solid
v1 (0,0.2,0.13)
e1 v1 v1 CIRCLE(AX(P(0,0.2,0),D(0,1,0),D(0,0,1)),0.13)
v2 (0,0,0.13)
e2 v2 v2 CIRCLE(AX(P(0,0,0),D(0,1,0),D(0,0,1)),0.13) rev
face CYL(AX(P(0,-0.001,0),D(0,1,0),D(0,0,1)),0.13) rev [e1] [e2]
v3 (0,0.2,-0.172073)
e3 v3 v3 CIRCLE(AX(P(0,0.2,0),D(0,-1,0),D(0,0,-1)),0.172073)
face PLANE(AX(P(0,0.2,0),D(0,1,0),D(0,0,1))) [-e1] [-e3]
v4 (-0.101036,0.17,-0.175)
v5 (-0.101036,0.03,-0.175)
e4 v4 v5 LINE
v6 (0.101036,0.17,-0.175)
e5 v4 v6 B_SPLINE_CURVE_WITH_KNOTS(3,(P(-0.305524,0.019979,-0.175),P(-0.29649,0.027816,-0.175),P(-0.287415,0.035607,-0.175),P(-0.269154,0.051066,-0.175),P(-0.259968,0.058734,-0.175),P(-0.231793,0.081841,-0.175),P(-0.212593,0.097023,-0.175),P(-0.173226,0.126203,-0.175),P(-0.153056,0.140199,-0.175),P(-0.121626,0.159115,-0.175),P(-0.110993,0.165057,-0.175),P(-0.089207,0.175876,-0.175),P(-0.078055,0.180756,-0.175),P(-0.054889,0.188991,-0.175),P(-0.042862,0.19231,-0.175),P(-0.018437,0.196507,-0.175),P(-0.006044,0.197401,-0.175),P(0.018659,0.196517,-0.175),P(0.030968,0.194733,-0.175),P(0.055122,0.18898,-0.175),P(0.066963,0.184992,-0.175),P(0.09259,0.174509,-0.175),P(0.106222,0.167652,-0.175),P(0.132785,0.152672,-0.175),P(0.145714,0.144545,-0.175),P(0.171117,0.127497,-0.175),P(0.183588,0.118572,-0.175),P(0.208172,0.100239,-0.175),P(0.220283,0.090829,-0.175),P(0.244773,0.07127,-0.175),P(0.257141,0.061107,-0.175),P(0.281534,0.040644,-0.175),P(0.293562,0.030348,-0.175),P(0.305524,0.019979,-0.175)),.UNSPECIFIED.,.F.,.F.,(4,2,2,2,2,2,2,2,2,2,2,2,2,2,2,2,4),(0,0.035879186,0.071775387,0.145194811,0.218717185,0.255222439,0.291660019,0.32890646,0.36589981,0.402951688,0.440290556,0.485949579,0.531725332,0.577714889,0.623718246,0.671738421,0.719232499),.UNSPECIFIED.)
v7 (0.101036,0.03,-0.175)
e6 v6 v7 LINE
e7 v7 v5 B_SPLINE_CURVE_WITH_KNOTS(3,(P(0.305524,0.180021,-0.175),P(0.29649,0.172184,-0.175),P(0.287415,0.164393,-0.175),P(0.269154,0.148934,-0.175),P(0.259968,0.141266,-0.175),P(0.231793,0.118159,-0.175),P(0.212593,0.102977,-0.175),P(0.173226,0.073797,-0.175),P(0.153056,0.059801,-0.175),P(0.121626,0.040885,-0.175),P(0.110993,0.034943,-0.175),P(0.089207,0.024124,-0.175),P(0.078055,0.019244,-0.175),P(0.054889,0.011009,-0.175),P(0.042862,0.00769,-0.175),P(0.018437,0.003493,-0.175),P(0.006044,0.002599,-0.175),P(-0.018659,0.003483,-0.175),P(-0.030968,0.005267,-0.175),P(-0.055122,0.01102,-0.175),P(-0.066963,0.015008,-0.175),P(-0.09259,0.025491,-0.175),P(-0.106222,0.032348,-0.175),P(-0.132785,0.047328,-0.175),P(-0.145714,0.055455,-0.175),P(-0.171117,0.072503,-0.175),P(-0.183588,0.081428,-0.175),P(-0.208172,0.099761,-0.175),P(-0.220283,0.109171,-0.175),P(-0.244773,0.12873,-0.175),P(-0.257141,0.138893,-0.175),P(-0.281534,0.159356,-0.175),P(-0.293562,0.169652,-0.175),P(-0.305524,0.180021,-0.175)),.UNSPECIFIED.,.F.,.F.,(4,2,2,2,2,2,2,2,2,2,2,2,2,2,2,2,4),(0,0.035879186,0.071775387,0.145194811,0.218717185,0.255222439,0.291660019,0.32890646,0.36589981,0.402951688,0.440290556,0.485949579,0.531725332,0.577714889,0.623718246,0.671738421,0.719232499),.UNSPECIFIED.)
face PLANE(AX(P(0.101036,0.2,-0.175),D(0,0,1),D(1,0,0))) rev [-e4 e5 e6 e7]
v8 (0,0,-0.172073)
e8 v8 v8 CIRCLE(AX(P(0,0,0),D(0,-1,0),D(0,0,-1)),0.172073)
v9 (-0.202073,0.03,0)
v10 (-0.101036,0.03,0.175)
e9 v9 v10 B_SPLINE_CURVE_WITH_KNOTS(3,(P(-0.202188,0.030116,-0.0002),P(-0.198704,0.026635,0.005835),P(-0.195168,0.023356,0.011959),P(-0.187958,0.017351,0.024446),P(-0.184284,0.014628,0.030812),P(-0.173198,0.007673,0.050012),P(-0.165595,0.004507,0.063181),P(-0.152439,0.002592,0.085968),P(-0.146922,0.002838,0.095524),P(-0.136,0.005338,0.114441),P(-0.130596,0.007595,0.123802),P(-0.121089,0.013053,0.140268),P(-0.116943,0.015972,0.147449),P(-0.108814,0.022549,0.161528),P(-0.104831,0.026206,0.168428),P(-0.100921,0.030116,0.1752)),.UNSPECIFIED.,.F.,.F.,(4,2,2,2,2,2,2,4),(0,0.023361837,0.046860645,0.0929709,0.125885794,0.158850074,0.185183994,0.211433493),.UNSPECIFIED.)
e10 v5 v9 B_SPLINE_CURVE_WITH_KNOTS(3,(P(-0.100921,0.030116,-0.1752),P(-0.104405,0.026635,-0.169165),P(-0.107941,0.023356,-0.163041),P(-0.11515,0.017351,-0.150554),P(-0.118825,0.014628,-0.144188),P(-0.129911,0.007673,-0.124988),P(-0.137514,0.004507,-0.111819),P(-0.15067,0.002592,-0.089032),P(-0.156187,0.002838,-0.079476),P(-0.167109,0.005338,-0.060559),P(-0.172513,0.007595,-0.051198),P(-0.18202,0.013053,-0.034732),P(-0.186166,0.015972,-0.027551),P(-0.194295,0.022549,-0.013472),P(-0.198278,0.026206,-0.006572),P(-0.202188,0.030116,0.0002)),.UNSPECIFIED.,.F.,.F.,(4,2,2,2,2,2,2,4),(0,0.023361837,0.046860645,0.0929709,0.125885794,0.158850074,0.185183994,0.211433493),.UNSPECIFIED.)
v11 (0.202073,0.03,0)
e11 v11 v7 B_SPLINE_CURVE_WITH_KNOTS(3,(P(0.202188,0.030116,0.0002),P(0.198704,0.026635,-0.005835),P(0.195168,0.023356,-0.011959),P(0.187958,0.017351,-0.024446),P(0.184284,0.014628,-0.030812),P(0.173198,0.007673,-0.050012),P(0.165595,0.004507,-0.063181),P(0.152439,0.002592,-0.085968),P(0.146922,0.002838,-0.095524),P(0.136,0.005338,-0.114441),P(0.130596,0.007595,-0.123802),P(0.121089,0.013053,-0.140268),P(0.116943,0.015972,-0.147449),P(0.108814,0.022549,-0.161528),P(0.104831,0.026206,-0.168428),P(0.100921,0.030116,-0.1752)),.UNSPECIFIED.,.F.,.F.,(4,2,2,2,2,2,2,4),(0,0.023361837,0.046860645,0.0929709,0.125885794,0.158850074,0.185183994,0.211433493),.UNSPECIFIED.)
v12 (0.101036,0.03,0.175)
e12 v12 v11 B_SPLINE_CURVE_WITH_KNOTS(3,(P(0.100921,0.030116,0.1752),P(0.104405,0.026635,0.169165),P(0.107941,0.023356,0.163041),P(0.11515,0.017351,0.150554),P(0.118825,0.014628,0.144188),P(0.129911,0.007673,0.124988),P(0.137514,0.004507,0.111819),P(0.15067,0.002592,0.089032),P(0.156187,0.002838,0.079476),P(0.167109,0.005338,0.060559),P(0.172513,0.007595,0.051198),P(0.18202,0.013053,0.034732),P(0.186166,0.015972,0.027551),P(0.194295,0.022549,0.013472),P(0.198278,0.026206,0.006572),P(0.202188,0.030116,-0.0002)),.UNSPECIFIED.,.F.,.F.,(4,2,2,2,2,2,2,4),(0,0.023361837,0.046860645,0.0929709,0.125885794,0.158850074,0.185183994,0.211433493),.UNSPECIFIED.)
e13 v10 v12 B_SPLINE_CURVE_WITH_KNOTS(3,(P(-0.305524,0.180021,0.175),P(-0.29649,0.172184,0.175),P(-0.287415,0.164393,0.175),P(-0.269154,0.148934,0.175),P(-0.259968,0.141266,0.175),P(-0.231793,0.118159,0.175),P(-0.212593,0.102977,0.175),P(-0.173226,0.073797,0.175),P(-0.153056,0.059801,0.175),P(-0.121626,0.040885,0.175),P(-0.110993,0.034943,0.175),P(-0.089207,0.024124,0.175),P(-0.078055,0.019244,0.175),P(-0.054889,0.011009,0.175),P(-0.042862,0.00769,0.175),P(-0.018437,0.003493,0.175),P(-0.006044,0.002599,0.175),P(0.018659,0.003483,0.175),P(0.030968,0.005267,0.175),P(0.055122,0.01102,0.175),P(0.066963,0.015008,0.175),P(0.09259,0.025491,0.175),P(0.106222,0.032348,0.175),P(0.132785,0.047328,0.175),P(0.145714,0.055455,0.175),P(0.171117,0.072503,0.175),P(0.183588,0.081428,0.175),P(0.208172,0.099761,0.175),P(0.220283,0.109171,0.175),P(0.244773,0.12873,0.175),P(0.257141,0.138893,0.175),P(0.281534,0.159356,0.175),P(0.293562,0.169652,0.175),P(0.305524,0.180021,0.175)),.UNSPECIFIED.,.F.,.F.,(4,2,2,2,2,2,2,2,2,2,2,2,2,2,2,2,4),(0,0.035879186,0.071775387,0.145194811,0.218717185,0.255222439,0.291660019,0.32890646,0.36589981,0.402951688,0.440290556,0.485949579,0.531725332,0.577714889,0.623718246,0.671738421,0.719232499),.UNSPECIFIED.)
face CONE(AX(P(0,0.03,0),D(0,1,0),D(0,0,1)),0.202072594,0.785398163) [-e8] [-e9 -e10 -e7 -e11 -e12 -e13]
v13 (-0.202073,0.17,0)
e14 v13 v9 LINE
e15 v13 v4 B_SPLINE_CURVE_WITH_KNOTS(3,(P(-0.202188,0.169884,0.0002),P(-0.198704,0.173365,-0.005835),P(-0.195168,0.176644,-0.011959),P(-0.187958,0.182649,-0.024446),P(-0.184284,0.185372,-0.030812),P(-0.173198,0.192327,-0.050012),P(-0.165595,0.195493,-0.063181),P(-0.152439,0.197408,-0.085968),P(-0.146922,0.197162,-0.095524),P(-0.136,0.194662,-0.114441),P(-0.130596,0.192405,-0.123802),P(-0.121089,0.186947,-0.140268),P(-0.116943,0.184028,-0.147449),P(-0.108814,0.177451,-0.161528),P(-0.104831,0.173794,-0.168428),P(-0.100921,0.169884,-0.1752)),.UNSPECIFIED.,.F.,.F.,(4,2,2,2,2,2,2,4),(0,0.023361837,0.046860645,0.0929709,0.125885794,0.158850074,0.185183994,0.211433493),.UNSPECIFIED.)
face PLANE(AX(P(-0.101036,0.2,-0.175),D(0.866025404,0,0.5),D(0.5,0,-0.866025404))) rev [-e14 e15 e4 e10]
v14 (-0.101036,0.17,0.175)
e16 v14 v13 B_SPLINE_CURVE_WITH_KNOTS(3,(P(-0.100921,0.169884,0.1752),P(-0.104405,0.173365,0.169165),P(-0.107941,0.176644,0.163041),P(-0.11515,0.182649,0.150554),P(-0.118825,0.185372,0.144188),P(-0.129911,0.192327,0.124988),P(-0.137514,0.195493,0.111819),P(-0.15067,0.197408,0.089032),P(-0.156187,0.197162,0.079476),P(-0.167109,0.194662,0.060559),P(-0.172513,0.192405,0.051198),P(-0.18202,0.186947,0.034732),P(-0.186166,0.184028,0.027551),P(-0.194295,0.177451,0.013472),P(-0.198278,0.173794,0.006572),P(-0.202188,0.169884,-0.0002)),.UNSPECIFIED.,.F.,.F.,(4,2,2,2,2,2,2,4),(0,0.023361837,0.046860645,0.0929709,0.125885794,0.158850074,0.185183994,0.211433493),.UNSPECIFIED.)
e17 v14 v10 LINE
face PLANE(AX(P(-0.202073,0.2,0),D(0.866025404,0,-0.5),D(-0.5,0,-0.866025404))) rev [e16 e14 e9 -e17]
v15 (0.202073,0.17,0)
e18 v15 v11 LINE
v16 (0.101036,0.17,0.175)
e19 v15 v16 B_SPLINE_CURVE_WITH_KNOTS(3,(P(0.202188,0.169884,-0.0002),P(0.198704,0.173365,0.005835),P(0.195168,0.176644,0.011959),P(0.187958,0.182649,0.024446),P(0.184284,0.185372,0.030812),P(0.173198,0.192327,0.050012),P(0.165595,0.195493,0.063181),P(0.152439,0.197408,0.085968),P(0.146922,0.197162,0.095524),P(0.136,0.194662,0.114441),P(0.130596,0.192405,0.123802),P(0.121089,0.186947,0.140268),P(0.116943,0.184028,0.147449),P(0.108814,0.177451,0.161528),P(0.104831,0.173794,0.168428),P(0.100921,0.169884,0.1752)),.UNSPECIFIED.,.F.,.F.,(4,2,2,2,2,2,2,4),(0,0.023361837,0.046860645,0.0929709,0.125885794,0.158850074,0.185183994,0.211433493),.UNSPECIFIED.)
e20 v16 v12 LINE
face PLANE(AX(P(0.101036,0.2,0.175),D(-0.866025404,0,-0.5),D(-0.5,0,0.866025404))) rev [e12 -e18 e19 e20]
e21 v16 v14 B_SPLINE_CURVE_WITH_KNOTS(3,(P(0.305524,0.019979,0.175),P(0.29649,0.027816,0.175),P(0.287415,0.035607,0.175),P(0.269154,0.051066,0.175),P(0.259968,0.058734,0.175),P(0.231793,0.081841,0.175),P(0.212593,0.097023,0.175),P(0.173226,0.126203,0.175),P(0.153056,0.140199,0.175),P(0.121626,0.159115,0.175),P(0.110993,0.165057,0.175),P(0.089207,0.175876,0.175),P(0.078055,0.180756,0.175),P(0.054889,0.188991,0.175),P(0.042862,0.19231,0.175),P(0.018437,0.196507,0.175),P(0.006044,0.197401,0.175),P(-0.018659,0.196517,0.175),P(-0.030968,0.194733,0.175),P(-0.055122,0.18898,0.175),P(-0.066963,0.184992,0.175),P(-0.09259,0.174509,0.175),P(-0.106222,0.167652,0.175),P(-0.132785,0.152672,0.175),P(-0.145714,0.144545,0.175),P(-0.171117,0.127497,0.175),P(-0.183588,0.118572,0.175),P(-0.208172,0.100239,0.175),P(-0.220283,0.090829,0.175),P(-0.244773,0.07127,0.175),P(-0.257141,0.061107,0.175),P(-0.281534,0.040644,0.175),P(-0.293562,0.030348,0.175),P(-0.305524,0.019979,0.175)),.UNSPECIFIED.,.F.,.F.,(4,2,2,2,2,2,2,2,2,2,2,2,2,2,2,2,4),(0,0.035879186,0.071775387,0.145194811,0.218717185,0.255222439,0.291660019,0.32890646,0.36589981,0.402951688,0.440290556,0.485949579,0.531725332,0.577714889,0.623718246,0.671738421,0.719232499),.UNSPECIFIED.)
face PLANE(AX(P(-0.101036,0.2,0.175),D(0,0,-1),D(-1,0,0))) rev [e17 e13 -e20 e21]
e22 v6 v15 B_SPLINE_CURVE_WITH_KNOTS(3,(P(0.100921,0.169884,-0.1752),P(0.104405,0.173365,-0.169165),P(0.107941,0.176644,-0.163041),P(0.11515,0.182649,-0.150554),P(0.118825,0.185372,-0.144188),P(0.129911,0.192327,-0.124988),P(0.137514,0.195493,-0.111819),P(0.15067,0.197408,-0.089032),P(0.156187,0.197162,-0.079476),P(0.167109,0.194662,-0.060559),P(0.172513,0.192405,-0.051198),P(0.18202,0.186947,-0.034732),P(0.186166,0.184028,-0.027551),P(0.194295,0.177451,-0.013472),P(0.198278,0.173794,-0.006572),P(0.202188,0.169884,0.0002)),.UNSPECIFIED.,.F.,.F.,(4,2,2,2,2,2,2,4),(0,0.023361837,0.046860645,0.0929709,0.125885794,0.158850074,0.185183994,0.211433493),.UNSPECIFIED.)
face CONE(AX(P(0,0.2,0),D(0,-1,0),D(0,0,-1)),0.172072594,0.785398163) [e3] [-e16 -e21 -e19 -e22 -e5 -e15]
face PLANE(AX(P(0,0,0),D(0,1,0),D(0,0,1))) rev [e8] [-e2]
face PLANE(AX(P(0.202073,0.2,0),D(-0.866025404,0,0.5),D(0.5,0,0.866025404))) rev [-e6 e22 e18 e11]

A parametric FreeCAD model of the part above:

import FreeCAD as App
import Part
import Sketcher

V = App.Vector
Q = App.Units.Quantity


def add_polygon(sketch, points):
    """Adds a closed chain of lines whose ends are joined by coincident constraints."""
    first, n = sketch.GeometryCount, len(points)
    for a, b in zip(points, points[1:] + points[:1]):
        sketch.addGeometry(Part.LineSegment(App.Vector(*a, 0), App.Vector(*b, 0)), False)
    for i in range(n):
        sketch.addConstraint(Sketcher.Constraint("Coincident", first + i, 2, first + (i + 1) % n, 1))

doc = App.newDocument("Part")
body = doc.addObject("PartDesign::Body", "Body")

# Sketch on XZ plane
sketch1 = body.newObject("Sketcher::SketchObject", "Sketch")
sketch1.AttachmentSupport = (doc.getObject("XZ_Plane"), [""])
sketch1.MapMode = "FlatFace"
add_polygon(sketch1, [(0.2, 0), (0.1, -0.17), (-0.1, -0.17), (-0.2, 0), (-0.1, 0.17), (0.1, 0.17)])  # lines 0-5
sketch1.addConstraint([
    Sketcher.Constraint("Horizontal", 1),
    Sketcher.Constraint("Horizontal", 4),
    Sketcher.Constraint("Symmetric", 0, 2, 3, 2, -1, 1),
    Sketcher.Constraint("Symmetric", 2, 2, 5, 2, -1, 1),
    Sketcher.Constraint("PointOnObject", 2, 2, -1),
    Sketcher.Constraint("Parallel", 2, 5),
    Sketcher.Constraint("Vertical", 1, 2, 3, 2),
    Sketcher.Constraint("Angle", 0, Q("-120 deg")),
    Sketcher.Constraint("DistanceY", 1, 2, 3, 2, 0.35),
    Sketcher.Constraint("DistanceX", 1, 2, 1, 1, 0.202073),
])
pad1 = body.newObject("PartDesign::Pad", "Pad")
pad1.Profile = sketch1
pad1.Length = 0.2
pad1.Reversed = True

# Sketch on XZ plane
sketch2 = body.newObject("Sketcher::SketchObject", "Sketch001")
sketch2.AttachmentSupport = (doc.getObject("XZ_Plane"), [""])
sketch2.MapMode = "FlatFace"
sketch2.AttachmentOffset = App.Placement(V(0, 0, -0.2), App.Rotation())
sketch2.addGeometry(Part.Circle(V(0, 0, 0), V(0, 0, 1), 0.13), False)
sketch2.addConstraint([
    Sketcher.Constraint("Coincident", 0, 3, -1, 1),
    Sketcher.Constraint("Diameter", 0, 0.26),
])
pocket1 = body.newObject("PartDesign::Pocket", "Pocket")
pocket1.Profile = sketch2
pocket1.Type = "UpToFirst"
pocket1.Reversed = True

# Sketch on XY plane
sketch3 = body.newObject("Sketcher::SketchObject", "Sketch002")
sketch3.AttachmentSupport = (doc.getObject("XY_Plane"), [""])
sketch3.MapMode = "FlatFace"
add_polygon(sketch3, [(0.172, 0), (0.202, 0), (0.202, 0.03)])  # lines 0-2
add_polygon(sketch3, [(0.202, 0.17), (0.202, 0.2), (0.172, 0.2)])  # lines 3-5
sketch3.addConstraint([
    Sketcher.Constraint("Horizontal", 0),
    Sketcher.Constraint("Vertical", 1),
    Sketcher.Constraint("Vertical", 3),
    Sketcher.Constraint("Horizontal", 4),
    Sketcher.Constraint("PointOnObject", 0, 2, -1),
    Sketcher.Constraint("Perpendicular", 2, 5),
    Sketcher.Constraint("Vertical", 1, 2, 3, 2),
    Sketcher.Constraint("Vertical", 2, 2, 4, 2),
    Sketcher.Constraint("Equal", 4, 1),
    Sketcher.Constraint("DistanceX", 0, 1, 0, 2, 0.03),
    Sketcher.Constraint("DistanceY", -1, 1, 3, 2, 0.2),
    Sketcher.Constraint("DistanceX", -1, 1, 0, 2, 0.202073),
])
groove = body.newObject("PartDesign::Groove", "Groove")
groove.Profile = sketch3
groove.ReferenceAxis = (sketch3, ["V_Axis"])
groove.Angle = 360

doc.recompute()
